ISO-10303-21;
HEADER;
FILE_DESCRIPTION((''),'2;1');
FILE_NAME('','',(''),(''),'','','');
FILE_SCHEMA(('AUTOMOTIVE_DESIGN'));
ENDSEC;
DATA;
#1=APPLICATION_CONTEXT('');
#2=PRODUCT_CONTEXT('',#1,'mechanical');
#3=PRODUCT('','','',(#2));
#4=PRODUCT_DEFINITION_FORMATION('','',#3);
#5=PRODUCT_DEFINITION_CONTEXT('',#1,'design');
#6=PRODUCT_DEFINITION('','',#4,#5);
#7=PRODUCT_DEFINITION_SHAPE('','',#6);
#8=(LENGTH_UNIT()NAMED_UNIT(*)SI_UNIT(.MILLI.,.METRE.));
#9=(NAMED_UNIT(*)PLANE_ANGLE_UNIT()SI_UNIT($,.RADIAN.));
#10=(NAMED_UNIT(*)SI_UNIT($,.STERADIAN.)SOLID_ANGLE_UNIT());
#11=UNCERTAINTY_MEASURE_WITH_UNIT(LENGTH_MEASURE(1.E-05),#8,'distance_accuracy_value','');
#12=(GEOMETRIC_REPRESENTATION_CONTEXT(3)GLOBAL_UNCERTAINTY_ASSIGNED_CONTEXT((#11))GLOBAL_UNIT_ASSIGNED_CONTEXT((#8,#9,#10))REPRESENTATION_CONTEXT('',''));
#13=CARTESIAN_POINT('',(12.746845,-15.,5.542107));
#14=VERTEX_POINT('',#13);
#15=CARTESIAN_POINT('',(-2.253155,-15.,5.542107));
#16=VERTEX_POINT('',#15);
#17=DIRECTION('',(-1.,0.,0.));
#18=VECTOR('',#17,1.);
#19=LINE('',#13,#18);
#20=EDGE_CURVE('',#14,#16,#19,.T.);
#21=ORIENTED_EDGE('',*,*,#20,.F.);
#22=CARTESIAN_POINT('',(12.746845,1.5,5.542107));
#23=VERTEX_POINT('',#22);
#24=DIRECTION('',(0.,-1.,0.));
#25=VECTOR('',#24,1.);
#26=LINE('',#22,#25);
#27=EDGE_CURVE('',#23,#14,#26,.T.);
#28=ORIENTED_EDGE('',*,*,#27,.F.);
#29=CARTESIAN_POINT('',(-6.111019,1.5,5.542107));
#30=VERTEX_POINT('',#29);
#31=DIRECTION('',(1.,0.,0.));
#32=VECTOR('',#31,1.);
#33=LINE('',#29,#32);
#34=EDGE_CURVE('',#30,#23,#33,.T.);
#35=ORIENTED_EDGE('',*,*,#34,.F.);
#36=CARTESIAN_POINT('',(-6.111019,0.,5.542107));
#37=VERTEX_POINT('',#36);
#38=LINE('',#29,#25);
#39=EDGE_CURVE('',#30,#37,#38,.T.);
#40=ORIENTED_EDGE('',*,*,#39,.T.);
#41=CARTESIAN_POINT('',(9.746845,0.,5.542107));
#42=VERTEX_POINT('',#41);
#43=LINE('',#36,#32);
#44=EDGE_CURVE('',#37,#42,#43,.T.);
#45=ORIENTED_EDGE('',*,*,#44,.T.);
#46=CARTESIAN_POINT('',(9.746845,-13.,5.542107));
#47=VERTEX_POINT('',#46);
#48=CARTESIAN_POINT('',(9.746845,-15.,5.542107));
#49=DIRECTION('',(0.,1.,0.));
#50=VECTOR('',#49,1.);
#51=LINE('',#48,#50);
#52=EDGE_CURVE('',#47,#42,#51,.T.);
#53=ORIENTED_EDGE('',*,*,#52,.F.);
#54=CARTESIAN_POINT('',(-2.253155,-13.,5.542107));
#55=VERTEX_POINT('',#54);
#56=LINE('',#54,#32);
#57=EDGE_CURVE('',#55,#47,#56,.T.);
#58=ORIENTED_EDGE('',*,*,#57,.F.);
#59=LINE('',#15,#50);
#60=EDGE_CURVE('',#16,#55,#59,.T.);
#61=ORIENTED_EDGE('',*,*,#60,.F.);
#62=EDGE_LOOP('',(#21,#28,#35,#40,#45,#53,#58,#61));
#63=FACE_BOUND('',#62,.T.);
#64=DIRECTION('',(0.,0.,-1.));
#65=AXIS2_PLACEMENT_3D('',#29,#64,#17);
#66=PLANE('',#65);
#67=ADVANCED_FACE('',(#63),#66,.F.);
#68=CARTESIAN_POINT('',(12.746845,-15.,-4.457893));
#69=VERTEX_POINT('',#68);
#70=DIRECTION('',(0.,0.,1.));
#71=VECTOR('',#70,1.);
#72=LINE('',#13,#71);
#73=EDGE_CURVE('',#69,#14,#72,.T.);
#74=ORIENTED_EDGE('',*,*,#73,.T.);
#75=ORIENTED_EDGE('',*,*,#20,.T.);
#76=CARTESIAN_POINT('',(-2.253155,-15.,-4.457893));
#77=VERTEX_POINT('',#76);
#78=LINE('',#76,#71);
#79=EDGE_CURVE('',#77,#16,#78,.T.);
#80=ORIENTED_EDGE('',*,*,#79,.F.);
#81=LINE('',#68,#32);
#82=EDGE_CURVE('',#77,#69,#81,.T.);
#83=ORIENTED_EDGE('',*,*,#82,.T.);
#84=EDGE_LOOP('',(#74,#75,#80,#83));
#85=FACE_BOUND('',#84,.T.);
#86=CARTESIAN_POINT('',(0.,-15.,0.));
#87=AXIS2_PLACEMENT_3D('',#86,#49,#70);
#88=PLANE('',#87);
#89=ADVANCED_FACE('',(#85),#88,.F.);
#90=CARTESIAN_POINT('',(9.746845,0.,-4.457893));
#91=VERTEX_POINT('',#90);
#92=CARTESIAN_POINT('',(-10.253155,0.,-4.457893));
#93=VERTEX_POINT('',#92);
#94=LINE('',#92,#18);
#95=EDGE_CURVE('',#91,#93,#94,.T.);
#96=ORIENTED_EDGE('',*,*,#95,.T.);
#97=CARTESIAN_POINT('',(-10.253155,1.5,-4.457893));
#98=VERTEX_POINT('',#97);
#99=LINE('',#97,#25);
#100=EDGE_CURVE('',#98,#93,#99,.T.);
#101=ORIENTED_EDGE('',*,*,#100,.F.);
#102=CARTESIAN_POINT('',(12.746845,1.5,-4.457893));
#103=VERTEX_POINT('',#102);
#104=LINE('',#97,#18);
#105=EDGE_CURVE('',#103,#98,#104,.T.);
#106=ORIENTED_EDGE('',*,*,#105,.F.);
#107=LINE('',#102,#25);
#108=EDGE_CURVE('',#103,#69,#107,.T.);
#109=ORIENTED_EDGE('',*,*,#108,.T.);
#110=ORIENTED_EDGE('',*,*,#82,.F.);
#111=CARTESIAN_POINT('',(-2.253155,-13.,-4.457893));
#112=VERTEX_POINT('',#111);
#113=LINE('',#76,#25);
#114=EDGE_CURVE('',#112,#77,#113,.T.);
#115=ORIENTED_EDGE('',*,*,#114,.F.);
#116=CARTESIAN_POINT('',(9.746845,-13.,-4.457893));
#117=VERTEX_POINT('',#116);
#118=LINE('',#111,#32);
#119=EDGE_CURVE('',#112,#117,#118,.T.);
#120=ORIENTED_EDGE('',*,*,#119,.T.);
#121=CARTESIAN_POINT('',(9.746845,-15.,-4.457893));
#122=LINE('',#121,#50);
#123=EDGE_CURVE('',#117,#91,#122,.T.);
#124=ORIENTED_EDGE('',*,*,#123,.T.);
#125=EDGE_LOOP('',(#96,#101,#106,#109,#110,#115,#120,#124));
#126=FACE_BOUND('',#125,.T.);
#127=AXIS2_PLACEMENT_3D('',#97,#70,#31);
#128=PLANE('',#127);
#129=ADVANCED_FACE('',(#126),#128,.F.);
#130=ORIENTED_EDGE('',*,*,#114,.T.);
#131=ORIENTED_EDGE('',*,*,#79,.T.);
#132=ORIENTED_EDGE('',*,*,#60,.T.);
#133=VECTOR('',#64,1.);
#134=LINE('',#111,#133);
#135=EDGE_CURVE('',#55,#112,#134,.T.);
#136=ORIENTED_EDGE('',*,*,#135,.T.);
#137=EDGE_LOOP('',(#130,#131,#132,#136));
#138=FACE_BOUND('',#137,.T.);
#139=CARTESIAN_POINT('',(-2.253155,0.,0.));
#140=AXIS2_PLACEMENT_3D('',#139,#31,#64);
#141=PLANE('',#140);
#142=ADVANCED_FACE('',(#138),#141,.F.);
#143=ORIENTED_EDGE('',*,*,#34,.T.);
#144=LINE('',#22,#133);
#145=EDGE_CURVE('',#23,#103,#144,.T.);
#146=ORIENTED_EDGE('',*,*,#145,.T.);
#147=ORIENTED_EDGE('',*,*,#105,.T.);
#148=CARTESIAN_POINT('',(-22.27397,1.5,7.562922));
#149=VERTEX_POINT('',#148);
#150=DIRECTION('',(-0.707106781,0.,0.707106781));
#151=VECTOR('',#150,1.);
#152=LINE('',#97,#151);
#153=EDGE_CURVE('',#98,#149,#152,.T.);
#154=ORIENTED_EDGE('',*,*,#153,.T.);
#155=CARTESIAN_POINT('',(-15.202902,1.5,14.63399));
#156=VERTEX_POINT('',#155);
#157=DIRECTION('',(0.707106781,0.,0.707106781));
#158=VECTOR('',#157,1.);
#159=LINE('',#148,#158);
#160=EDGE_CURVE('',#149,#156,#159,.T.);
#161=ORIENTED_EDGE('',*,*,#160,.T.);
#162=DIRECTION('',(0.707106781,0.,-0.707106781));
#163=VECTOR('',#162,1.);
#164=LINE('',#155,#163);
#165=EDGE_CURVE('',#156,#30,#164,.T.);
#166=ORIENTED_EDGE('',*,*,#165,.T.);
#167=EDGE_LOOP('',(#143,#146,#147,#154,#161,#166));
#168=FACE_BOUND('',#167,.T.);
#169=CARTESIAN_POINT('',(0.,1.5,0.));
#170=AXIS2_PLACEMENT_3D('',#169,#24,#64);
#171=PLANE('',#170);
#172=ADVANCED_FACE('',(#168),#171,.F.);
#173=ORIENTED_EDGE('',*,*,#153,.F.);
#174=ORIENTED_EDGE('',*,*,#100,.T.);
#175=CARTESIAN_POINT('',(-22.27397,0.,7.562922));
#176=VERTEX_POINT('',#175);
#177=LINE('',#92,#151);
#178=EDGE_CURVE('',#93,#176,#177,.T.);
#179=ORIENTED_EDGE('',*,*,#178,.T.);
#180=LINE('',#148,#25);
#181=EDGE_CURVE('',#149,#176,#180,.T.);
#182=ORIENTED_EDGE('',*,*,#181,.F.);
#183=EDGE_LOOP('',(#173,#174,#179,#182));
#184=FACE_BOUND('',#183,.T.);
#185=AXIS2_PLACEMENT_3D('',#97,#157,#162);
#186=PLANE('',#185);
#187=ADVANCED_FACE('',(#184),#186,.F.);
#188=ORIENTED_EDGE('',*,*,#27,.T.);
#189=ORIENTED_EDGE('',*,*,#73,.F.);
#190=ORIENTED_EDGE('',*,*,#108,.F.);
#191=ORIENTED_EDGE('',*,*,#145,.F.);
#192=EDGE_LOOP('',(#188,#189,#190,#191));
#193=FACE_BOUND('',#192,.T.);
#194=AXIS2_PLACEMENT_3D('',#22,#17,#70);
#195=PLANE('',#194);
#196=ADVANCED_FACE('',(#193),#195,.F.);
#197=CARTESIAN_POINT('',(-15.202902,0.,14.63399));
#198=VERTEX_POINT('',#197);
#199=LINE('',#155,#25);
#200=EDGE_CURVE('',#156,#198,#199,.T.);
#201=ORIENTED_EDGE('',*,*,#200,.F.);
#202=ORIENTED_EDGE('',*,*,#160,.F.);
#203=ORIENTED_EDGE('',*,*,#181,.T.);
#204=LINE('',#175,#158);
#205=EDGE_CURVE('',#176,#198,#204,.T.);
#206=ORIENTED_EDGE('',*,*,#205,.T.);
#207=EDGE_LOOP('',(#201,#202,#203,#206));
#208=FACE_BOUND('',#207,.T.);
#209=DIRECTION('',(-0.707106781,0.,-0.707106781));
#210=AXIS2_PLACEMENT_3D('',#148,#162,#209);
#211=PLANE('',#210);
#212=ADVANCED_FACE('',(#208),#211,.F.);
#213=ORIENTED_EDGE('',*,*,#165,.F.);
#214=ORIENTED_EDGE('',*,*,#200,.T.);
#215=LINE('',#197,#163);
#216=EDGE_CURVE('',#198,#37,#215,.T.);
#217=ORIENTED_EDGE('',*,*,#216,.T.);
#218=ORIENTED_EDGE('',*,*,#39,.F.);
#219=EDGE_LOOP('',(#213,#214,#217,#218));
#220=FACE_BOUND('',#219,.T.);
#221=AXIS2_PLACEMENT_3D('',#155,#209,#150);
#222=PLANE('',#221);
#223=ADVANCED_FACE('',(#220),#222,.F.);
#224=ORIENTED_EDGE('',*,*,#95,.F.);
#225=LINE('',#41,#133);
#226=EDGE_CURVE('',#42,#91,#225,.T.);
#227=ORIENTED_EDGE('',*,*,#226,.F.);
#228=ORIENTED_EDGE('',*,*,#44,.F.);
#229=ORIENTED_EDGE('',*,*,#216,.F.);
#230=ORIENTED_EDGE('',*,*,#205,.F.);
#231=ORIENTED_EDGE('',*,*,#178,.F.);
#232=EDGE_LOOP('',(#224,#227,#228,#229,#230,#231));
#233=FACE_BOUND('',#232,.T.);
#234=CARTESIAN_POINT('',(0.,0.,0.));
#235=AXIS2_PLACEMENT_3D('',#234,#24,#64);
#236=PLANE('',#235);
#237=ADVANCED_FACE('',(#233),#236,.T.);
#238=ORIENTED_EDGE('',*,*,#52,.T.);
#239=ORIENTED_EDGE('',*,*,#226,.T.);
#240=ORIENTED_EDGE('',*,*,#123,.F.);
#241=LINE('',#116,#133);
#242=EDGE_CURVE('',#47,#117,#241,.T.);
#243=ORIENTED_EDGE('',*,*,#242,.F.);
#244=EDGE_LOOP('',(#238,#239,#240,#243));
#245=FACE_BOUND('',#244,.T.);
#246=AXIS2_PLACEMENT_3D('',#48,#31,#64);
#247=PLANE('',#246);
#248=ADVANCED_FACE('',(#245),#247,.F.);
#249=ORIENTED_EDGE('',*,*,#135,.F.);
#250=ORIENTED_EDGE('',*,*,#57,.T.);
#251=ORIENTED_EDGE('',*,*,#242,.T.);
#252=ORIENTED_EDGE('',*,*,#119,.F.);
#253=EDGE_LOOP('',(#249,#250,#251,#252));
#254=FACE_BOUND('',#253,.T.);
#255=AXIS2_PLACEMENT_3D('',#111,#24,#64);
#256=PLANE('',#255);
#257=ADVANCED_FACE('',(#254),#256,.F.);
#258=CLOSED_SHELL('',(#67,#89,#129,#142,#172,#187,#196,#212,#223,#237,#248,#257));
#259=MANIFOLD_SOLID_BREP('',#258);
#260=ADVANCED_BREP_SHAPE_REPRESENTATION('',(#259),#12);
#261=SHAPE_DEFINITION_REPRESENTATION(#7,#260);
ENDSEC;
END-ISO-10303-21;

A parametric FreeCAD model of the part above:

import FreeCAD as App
import Part
import Sketcher
from FreeCAD import Vector
Q = App.Units.Quantity

doc = App.newDocument("Part")
body = doc.addObject("PartDesign::Body", "Body")

sketch1 = doc.addObject("Sketcher::SketchObject", "Sketch")
body.addObject(sketch1)
sketch1.AttachmentSupport = (doc.XZ_Plane, [""])
sketch1.MapMode = "FlatFace"
sketch1.addGeometry(Part.LineSegment(Vector(-10, -4, 0), Vector(-22, 8, 0)), False)
sketch1.addGeometry(Part.LineSegment(Vector(-22, 8, 0), Vector(-15, 15, 0)), False)
sketch1.addGeometry(Part.LineSegment(Vector(-15, 15, 0), Vector(-6, 6, 0)), False)
sketch1.addGeometry(Part.LineSegment(Vector(-6, 6, 0), Vector(13, 6, 0)), False)
sketch1.addGeometry(Part.LineSegment(Vector(13, 6, 0), Vector(13, -4, 0)), False)
sketch1.addGeometry(Part.LineSegment(Vector(13, -4, 0), Vector(-10, -4, 0)), False)
sketch1.addConstraint(Sketcher.Constraint("Coincident", 0, 2, 1, 1))
sketch1.addConstraint(Sketcher.Constraint("Coincident", 1, 2, 2, 1))
sketch1.addConstraint(Sketcher.Constraint("Coincident", 2, 2, 3, 1))
sketch1.addConstraint(Sketcher.Constraint("Coincident", 3, 2, 4, 1))
sketch1.addConstraint(Sketcher.Constraint("Coincident", 4, 2, 5, 1))
sketch1.addConstraint(Sketcher.Constraint("Coincident", 5, 2, 0, 1))
sketch1.addConstraint(Sketcher.Constraint("Horizontal", 3))
sketch1.addConstraint(Sketcher.Constraint("Vertical", 4))
sketch1.addConstraint(Sketcher.Constraint("Horizontal", 5))
sketch1.addConstraint(Sketcher.Constraint("Perpendicular", 0, 1))
sketch1.addConstraint(Sketcher.Constraint("Perpendicular", 1, 2))
sketch1.addConstraint(Sketcher.Constraint("DistanceX", 5, 2, 5, 1, 23.0))
sketch1.addConstraint(Sketcher.Constraint("DistanceY", 4, 2, 4, 1, 10.0))
sketch1.addConstraint(Sketcher.Constraint("Angle", 0, Q("135 deg")))
sketch1.addConstraint(Sketcher.Constraint("Distance", 0, 17.0))
sketch1.addConstraint(Sketcher.Constraint("Distance", 1, 10.0))
sketch1.addConstraint(Sketcher.Constraint("DistanceX", 0, 2, -1, 1, 22.27397))
sketch1.addConstraint(Sketcher.Constraint("DistanceY", -1, 1, 0, 2, 7.562922))
pad1 = doc.addObject("PartDesign::Pad", "Pad")
body.addObject(pad1)
pad1.Profile = sketch1
pad1.Length = 1.5
pad1.Reversed = True

sketch2 = doc.addObject("Sketcher::SketchObject", "Sketch001")
body.addObject(sketch2)
sketch2.AttachmentSupport = (doc.XZ_Plane, [""])
sketch2.MapMode = "FlatFace"
sketch2.addGeometry(Part.LineSegment(Vector(9.7, 5.5, 0), Vector(9.7, -4.5, 0)), False)
sketch2.addGeometry(Part.LineSegment(Vector(9.7, -4.5, 0), Vector(12.7, -4.5, 0)), False)
sketch2.addGeometry(Part.LineSegment(Vector(12.7, -4.5, 0), Vector(12.7, 5.5, 0)), False)
sketch2.addGeometry(Part.LineSegment(Vector(12.7, 5.5, 0), Vector(9.7, 5.5, 0)), False)
sketch2.addConstraint(Sketcher.Constraint("Coincident", 0, 2, 1, 1))
sketch2.addConstraint(Sketcher.Constraint("Coincident", 1, 2, 2, 1))
sketch2.addConstraint(Sketcher.Constraint("Coincident", 2, 2, 3, 1))
sketch2.addConstraint(Sketcher.Constraint("Coincident", 3, 2, 0, 1))
sketch2.addConstraint(Sketcher.Constraint("Vertical", 0))
sketch2.addConstraint(Sketcher.Constraint("Horizontal", 1))
sketch2.addConstraint(Sketcher.Constraint("Vertical", 2))
sketch2.addConstraint(Sketcher.Constraint("Horizontal", 3))
sketch2.addConstraint(Sketcher.Constraint("DistanceX", 1, 1, 1, 2, 3.0))
sketch2.addConstraint(Sketcher.Constraint("DistanceY", 0, 2, 0, 1, 10.0))
sketch2.addConstraint(Sketcher.Constraint("DistanceX", -1, 1, 0, 2, 9.746845))
sketch2.addConstraint(Sketcher.Constraint("DistanceY", 0, 2, -1, 1, 4.457893))
pad2 = doc.addObject("PartDesign::Pad", "Pad001")
body.addObject(pad2)
pad2.Profile = sketch2
pad2.Length = 15

sketch3 = doc.addObject("Sketcher::SketchObject", "Sketch002")
body.addObject(sketch3)
sketch3.AttachmentSupport = (doc.YZ_Plane, [""])
sketch3.MapMode = "FlatFace"
sketch3.AttachmentOffset = App.Placement(Vector(0, 0, 9.746845), App.Rotation())
sketch3.addGeometry(Part.LineSegment(Vector(-13, -4.5, 0), Vector(-15, -4.5, 0)), False)
sketch3.addGeometry(Part.LineSegment(Vector(-15, -4.5, 0), Vector(-15, 5.5, 0)), False)
sketch3.addGeometry(Part.LineSegment(Vector(-15, 5.5, 0), Vector(-13, 5.5, 0)), False)
sketch3.addGeometry(Part.LineSegment(Vector(-13, 5.5, 0), Vector(-13, -4.5, 0)), False)
sketch3.addConstraint(Sketcher.Constraint("Coincident", 0, 2, 1, 1))
sketch3.addConstraint(Sketcher.Constraint("Coincident", 1, 2, 2, 1))
sketch3.addConstraint(Sketcher.Constraint("Coincident", 2, 2, 3, 1))
sketch3.addConstraint(Sketcher.Constraint("Coincident", 3, 2, 0, 1))
sketch3.addConstraint(Sketcher.Constraint("Horizontal", 0))
sketch3.addConstraint(Sketcher.Constraint("Vertical", 1))
sketch3.addConstraint(Sketcher.Constraint("Horizontal", 2))
sketch3.addConstraint(Sketcher.Constraint("Vertical", 3))
sketch3.addConstraint(Sketcher.Constraint("DistanceX", 0, 2, 0, 1, 2.0))
sketch3.addConstraint(Sketcher.Constraint("DistanceY", 1, 1, 1, 2, 10.0))
sketch3.addConstraint(Sketcher.Constraint("DistanceX", 0, 2, -1, 1, 15.0))
sketch3.addConstraint(Sketcher.Constraint("DistanceY", 0, 2, -1, 1, 4.457893))
pad3 = doc.addObject("PartDesign::Pad", "Pad002")
body.addObject(pad3)
pad3.Profile = sketch3
pad3.Length = 12
pad3.Reversed = True

doc.recompute()
